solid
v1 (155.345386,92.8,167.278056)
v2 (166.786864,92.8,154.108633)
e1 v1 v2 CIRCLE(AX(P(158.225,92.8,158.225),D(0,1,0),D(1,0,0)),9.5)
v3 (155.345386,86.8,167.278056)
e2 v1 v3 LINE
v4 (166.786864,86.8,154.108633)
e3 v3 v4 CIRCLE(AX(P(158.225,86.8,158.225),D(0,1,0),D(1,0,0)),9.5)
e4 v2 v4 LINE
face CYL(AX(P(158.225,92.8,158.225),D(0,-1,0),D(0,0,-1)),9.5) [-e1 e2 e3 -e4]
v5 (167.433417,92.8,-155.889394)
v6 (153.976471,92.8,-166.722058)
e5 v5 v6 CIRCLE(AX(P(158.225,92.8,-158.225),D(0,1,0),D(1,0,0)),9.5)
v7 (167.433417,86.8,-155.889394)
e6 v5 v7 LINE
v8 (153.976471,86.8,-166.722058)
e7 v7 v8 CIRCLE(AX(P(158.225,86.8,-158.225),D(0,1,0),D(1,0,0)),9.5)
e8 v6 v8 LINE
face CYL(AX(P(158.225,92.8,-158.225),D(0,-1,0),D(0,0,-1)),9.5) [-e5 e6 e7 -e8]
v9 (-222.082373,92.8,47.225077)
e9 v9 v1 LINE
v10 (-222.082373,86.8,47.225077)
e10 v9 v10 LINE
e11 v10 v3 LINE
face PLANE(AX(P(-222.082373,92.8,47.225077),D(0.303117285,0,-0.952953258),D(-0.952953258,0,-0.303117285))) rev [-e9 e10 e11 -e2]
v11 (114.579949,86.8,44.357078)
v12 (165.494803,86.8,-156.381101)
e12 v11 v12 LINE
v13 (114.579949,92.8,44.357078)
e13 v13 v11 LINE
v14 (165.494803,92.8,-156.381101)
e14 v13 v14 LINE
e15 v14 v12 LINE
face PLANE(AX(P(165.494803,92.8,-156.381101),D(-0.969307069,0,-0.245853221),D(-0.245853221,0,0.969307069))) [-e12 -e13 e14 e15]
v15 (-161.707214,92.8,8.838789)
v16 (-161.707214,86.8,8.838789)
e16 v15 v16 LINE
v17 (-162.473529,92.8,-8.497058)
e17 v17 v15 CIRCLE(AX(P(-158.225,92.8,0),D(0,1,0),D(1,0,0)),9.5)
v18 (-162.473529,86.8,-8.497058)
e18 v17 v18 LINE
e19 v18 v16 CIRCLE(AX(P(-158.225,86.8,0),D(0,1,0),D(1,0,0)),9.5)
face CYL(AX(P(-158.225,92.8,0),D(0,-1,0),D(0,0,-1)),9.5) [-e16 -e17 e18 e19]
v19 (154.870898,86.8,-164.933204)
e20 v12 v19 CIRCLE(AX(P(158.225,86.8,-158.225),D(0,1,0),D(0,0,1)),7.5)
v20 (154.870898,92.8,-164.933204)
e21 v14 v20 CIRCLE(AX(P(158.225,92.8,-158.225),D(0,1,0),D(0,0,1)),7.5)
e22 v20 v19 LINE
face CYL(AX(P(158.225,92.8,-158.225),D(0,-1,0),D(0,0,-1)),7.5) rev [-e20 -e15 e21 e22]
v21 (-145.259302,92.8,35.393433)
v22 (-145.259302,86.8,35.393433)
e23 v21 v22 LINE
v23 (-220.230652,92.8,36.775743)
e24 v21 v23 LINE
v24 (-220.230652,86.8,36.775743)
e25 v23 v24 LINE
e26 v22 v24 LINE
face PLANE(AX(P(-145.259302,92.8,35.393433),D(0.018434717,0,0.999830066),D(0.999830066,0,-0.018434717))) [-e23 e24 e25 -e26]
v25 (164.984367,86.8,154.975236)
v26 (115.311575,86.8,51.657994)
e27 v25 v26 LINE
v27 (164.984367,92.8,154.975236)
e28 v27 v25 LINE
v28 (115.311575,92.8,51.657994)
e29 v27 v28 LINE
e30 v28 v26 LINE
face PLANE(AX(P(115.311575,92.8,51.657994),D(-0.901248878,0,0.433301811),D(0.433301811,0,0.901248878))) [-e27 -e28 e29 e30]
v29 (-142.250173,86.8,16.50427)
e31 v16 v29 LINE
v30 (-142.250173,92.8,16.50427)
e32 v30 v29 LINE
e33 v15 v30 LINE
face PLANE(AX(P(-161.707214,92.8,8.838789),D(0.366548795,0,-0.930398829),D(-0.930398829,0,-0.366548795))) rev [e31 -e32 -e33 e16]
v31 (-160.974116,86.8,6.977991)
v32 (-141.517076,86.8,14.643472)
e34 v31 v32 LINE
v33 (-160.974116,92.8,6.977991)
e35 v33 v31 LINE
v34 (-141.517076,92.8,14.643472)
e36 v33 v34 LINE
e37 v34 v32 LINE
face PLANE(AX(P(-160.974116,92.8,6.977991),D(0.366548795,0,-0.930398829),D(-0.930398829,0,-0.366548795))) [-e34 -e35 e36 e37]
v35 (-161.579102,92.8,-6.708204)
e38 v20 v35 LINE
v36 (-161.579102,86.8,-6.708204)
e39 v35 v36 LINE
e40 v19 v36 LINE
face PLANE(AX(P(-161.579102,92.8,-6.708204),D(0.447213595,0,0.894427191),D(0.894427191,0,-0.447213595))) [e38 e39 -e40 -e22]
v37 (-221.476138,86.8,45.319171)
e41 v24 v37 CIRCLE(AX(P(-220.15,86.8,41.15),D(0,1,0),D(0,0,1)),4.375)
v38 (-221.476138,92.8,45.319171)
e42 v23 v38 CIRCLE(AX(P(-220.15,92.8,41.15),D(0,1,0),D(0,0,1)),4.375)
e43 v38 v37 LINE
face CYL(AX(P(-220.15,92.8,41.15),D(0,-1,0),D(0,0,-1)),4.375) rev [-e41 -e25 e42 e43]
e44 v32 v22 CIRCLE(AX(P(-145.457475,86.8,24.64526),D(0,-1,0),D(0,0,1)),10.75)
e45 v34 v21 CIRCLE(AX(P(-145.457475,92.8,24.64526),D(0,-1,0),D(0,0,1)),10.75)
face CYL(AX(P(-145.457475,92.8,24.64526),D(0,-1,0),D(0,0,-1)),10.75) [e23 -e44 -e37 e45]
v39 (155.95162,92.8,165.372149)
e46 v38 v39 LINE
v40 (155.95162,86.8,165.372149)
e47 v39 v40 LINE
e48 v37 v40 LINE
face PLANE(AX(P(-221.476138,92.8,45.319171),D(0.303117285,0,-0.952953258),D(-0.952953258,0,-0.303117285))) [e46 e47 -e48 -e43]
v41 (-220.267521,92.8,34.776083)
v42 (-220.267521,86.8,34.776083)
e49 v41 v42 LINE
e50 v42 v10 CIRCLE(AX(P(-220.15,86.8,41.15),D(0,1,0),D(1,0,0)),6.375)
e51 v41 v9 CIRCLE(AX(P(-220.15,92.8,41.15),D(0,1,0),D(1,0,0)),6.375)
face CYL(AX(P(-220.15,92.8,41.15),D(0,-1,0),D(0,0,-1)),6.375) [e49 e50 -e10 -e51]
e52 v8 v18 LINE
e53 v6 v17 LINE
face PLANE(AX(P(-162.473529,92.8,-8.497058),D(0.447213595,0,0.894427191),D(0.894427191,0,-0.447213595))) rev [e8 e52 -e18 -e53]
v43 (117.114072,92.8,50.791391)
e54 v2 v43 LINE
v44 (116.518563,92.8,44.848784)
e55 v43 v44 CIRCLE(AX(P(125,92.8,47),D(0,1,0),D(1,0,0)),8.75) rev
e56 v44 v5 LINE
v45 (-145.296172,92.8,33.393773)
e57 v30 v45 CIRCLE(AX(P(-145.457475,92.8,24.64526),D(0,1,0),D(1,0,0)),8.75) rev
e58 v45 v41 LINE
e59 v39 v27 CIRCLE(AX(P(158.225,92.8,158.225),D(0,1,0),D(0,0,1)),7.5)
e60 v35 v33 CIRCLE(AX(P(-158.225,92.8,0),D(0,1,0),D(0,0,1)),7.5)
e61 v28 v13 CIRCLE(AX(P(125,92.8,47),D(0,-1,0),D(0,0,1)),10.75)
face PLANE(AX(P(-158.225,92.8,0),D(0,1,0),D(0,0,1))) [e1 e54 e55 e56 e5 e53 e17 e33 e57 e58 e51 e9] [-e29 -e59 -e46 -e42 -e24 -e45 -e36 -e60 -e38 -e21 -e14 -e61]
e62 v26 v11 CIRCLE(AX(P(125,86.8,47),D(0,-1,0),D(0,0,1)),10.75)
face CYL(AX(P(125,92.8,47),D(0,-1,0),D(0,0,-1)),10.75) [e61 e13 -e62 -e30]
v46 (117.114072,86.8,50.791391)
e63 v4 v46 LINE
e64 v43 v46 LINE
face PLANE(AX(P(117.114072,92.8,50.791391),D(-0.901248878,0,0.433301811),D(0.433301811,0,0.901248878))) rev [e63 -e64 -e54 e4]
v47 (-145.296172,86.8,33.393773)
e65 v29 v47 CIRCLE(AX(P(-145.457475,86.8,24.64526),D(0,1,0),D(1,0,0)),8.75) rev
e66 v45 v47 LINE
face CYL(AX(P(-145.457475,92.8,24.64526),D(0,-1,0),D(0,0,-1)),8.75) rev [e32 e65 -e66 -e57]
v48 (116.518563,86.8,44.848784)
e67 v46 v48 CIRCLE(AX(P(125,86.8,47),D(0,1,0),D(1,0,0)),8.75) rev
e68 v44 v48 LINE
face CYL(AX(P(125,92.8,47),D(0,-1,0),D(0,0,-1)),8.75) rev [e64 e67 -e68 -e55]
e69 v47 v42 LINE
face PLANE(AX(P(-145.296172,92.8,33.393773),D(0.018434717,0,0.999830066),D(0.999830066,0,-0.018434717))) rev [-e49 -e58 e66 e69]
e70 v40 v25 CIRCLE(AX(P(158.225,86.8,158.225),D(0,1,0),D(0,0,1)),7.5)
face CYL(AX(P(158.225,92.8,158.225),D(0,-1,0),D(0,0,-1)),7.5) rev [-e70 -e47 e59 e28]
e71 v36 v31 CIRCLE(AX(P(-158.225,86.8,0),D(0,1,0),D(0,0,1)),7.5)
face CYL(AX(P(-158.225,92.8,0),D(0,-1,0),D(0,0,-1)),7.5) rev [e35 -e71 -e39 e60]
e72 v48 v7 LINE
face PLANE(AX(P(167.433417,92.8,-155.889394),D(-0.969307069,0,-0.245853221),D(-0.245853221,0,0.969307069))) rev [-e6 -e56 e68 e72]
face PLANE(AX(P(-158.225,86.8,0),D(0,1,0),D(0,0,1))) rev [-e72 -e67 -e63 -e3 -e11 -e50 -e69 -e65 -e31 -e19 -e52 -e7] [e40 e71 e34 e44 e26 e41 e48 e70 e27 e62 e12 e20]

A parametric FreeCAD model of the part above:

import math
import FreeCAD as App
import Part
import Sketcher
Q = App.Units.Quantity

doc = App.newDocument("Part")
body = doc.addObject("PartDesign::Body", "Body")

# Sketch on XZ plane
sketch1 = body.newObject("Sketcher::SketchObject", "Sketch")
sketch1.AttachmentSupport = (doc.getObject("XZ_Plane"), [""])
sketch1.MapMode = "FlatFace"
sketch1.AttachmentOffset = App.Placement(App.Vector(0, 0, -86.8), App.Rotation())
sketch1.addGeometry([
    Part.LineSegment(App.Vector(154, -166.7, 0), App.Vector(-162.5, -8.5, 0)),  # 0
    Part.ArcOfCircle(Part.Circle(App.Vector(-158.2, 0, 0), App.Vector(0, 0, 1), 9.5), math.radians(112), math.radians(243)),  # 1
    Part.LineSegment(App.Vector(-161.7, 8.8, 0), App.Vector(-142.3, 16.5, 0)),  # 2
    Part.ArcOfCircle(Part.Circle(App.Vector(-145.5, 24.6, 0), App.Vector(0, 0, 1), 8.8), math.radians(-68), math.radians(89)),  # 3
    Part.LineSegment(App.Vector(-145.3, 33.4, 0), App.Vector(-220.3, 34.8, 0)),  # 4
    Part.ArcOfCircle(Part.Circle(App.Vector(-220.1, 41.1, 0), App.Vector(0, 0, 1), 6.4), math.radians(108), math.radians(269)),  # 5
    Part.LineSegment(App.Vector(-222.1, 47.2, 0), App.Vector(155.3, 167.3, 0)),  # 6
    Part.ArcOfCircle(Part.Circle(App.Vector(158.2, 158.2, 0), App.Vector(0, 0, 1), 9.5), math.radians(-26), math.radians(108)),  # 7
    Part.LineSegment(App.Vector(166.8, 154.1, 0), App.Vector(117.1, 50.8, 0)),  # 8
    Part.ArcOfCircle(Part.Circle(App.Vector(125, 47, 0), App.Vector(0, 0, 1), 8.7), math.radians(154), math.radians(194)),  # 9
    Part.LineSegment(App.Vector(116.5, 44.8, 0), App.Vector(167.4, -155.9, 0)),  # 10
    Part.ArcOfCircle(Part.Circle(App.Vector(158.2, -158.2, 0), App.Vector(0, 0, 1), 9.5), math.radians(-117), math.radians(14)),  # 11
    Part.LineSegment(App.Vector(-161.6, -6.7, 0), App.Vector(154.9, -164.9, 0)),  # 12
    Part.ArcOfCircle(Part.Circle(App.Vector(158.2, -158.2, 0), App.Vector(0, 0, 1), 7.5), math.radians(-117), math.radians(14)),  # 13
    Part.LineSegment(App.Vector(165.5, -156.4, 0), App.Vector(114.6, 44.4, 0)),  # 14
    Part.ArcOfCircle(Part.Circle(App.Vector(125, 47, 0), App.Vector(0, 0, 1), 10.8), math.radians(154), math.radians(194)),  # 15
    Part.LineSegment(App.Vector(115.3, 51.7, 0), App.Vector(165, 155, 0)),  # 16
    Part.ArcOfCircle(Part.Circle(App.Vector(158.2, 158.2, 0), App.Vector(0, 0, 1), 7.5), math.radians(-26), math.radians(108)),  # 17
    Part.LineSegment(App.Vector(156, 165.4, 0), App.Vector(-221.5, 45.3, 0)),  # 18
    Part.ArcOfCircle(Part.Circle(App.Vector(-220.2, 41.1, 0), App.Vector(0, 0, 1), 4.4), math.radians(108), math.radians(269)),  # 19
    Part.LineSegment(App.Vector(-220.2, 36.8, 0), App.Vector(-145.3, 35.4, 0)),  # 20
    Part.ArcOfCircle(Part.Circle(App.Vector(-145.5, 24.6, 0), App.Vector(0, 0, 1), 10.8), math.radians(-68), math.radians(89)),  # 21
    Part.LineSegment(App.Vector(-141.5, 14.6, 0), App.Vector(-161, 7, 0)),  # 22
    Part.ArcOfCircle(Part.Circle(App.Vector(-158.2, 0, 0), App.Vector(0, 0, 1), 7.5), math.radians(112), math.radians(243)),  # 23
], False)
sketch1.addConstraint([
    Sketcher.Constraint("Tangent", 0, 2, 1, 2),
    Sketcher.Constraint("Tangent", 1, 1, 2, 1),
    Sketcher.Constraint("Tangent", 2, 2, 3, 1),
    Sketcher.Constraint("Tangent", 3, 2, 4, 1),
    Sketcher.Constraint("Tangent", 4, 2, 5, 2),
    Sketcher.Constraint("Tangent", 5, 1, 6, 1),
    Sketcher.Constraint("Tangent", 6, 2, 7, 2),
    Sketcher.Constraint("Tangent", 7, 1, 8, 1),
    Sketcher.Constraint("Tangent", 8, 2, 9, 1),
    Sketcher.Constraint("Tangent", 9, 2, 10, 1),
    Sketcher.Constraint("Tangent", 10, 2, 11, 2),
    Sketcher.Constraint("Tangent", 11, 1, 0, 1),
    Sketcher.Constraint("Tangent", 12, 2, 13, 1),
    Sketcher.Constraint("Tangent", 13, 2, 14, 1),
    Sketcher.Constraint("Tangent", 14, 2, 15, 2),
    Sketcher.Constraint("Tangent", 15, 1, 16, 1),
    Sketcher.Constraint("Tangent", 16, 2, 17, 1),
    Sketcher.Constraint("Tangent", 17, 2, 18, 1),
    Sketcher.Constraint("Tangent", 18, 2, 19, 1),
    Sketcher.Constraint("Tangent", 19, 2, 20, 1),
    Sketcher.Constraint("Tangent", 20, 2, 21, 2),
    Sketcher.Constraint("Tangent", 21, 1, 22, 1),
    Sketcher.Constraint("Tangent", 22, 2, 23, 1),
    Sketcher.Constraint("Tangent", 23, 2, 12, 1),
    Sketcher.Constraint("Coincident", 13, 3, 11, 3),
    Sketcher.Constraint("Coincident", 15, 3, 9, 3),
    Sketcher.Constraint("Coincident", 17, 3, 7, 3),
    Sketcher.Constraint("Coincident", 19, 3, 5, 3),
    Sketcher.Constraint("Coincident", 21, 3, 3, 3),
    Sketcher.Constraint("Coincident", 23, 3, 1, 3),
    Sketcher.Constraint("Equal", 1, 7),
    Sketcher.Constraint("Equal", 3, 9),
    Sketcher.Constraint("Equal", 7, 11),
    Sketcher.Constraint("Equal", 13, 17),
    Sketcher.Constraint("Equal", 15, 21),
    Sketcher.Constraint("Equal", 17, 23),
    Sketcher.Constraint("Symmetric", 7, 3, 11, 3, -1),
    Sketcher.Constraint("PointOnObject", 1, 3, -1),
    Sketcher.Constraint("Parallel", 10, 14),
    Sketcher.Constraint("Parallel", 6, 18),
    Sketcher.Constraint("Radius", 1, Q("9.5 mm")),
    Sketcher.Constraint("Radius", 13, Q("7.5 mm")),
    Sketcher.Constraint("Radius", 3, Q("8.75 mm")),
    Sketcher.Constraint("DistanceX", -1, 1, 9, 3, Q("125 mm")),
    Sketcher.Constraint("DistanceY", -1, 1, 9, 3, Q("47 mm")),
    Sketcher.Constraint("Radius", 5, Q("6.375 mm")),
    Sketcher.Constraint("DistanceX", 5, 3, -1, 1, Q("220.15 mm")),
    Sketcher.Constraint("DistanceY", -1, 1, 5, 3, Q("41.15 mm")),
    Sketcher.Constraint("DistanceX", 1, 3, 7, 3, Q("316.45 mm")),
    Sketcher.Constraint("DistanceY", 11, 3, 7, 3, Q("316.45 mm")),
    Sketcher.Constraint("DistanceX", 1, 3, -1, 1, Q("158.225 mm")),
    Sketcher.Constraint("DistanceX", 3, 2, 2, 2, Q("3.045998 mm")),
    Sketcher.Constraint("DistanceX", 21, 3, 2, 2, Q("3.207302 mm")),
])
pad1 = body.newObject("PartDesign::Pad", "Pad")
pad1.Profile = sketch1
pad1.Length = 6
pad1.Reversed = True

doc.recompute()
